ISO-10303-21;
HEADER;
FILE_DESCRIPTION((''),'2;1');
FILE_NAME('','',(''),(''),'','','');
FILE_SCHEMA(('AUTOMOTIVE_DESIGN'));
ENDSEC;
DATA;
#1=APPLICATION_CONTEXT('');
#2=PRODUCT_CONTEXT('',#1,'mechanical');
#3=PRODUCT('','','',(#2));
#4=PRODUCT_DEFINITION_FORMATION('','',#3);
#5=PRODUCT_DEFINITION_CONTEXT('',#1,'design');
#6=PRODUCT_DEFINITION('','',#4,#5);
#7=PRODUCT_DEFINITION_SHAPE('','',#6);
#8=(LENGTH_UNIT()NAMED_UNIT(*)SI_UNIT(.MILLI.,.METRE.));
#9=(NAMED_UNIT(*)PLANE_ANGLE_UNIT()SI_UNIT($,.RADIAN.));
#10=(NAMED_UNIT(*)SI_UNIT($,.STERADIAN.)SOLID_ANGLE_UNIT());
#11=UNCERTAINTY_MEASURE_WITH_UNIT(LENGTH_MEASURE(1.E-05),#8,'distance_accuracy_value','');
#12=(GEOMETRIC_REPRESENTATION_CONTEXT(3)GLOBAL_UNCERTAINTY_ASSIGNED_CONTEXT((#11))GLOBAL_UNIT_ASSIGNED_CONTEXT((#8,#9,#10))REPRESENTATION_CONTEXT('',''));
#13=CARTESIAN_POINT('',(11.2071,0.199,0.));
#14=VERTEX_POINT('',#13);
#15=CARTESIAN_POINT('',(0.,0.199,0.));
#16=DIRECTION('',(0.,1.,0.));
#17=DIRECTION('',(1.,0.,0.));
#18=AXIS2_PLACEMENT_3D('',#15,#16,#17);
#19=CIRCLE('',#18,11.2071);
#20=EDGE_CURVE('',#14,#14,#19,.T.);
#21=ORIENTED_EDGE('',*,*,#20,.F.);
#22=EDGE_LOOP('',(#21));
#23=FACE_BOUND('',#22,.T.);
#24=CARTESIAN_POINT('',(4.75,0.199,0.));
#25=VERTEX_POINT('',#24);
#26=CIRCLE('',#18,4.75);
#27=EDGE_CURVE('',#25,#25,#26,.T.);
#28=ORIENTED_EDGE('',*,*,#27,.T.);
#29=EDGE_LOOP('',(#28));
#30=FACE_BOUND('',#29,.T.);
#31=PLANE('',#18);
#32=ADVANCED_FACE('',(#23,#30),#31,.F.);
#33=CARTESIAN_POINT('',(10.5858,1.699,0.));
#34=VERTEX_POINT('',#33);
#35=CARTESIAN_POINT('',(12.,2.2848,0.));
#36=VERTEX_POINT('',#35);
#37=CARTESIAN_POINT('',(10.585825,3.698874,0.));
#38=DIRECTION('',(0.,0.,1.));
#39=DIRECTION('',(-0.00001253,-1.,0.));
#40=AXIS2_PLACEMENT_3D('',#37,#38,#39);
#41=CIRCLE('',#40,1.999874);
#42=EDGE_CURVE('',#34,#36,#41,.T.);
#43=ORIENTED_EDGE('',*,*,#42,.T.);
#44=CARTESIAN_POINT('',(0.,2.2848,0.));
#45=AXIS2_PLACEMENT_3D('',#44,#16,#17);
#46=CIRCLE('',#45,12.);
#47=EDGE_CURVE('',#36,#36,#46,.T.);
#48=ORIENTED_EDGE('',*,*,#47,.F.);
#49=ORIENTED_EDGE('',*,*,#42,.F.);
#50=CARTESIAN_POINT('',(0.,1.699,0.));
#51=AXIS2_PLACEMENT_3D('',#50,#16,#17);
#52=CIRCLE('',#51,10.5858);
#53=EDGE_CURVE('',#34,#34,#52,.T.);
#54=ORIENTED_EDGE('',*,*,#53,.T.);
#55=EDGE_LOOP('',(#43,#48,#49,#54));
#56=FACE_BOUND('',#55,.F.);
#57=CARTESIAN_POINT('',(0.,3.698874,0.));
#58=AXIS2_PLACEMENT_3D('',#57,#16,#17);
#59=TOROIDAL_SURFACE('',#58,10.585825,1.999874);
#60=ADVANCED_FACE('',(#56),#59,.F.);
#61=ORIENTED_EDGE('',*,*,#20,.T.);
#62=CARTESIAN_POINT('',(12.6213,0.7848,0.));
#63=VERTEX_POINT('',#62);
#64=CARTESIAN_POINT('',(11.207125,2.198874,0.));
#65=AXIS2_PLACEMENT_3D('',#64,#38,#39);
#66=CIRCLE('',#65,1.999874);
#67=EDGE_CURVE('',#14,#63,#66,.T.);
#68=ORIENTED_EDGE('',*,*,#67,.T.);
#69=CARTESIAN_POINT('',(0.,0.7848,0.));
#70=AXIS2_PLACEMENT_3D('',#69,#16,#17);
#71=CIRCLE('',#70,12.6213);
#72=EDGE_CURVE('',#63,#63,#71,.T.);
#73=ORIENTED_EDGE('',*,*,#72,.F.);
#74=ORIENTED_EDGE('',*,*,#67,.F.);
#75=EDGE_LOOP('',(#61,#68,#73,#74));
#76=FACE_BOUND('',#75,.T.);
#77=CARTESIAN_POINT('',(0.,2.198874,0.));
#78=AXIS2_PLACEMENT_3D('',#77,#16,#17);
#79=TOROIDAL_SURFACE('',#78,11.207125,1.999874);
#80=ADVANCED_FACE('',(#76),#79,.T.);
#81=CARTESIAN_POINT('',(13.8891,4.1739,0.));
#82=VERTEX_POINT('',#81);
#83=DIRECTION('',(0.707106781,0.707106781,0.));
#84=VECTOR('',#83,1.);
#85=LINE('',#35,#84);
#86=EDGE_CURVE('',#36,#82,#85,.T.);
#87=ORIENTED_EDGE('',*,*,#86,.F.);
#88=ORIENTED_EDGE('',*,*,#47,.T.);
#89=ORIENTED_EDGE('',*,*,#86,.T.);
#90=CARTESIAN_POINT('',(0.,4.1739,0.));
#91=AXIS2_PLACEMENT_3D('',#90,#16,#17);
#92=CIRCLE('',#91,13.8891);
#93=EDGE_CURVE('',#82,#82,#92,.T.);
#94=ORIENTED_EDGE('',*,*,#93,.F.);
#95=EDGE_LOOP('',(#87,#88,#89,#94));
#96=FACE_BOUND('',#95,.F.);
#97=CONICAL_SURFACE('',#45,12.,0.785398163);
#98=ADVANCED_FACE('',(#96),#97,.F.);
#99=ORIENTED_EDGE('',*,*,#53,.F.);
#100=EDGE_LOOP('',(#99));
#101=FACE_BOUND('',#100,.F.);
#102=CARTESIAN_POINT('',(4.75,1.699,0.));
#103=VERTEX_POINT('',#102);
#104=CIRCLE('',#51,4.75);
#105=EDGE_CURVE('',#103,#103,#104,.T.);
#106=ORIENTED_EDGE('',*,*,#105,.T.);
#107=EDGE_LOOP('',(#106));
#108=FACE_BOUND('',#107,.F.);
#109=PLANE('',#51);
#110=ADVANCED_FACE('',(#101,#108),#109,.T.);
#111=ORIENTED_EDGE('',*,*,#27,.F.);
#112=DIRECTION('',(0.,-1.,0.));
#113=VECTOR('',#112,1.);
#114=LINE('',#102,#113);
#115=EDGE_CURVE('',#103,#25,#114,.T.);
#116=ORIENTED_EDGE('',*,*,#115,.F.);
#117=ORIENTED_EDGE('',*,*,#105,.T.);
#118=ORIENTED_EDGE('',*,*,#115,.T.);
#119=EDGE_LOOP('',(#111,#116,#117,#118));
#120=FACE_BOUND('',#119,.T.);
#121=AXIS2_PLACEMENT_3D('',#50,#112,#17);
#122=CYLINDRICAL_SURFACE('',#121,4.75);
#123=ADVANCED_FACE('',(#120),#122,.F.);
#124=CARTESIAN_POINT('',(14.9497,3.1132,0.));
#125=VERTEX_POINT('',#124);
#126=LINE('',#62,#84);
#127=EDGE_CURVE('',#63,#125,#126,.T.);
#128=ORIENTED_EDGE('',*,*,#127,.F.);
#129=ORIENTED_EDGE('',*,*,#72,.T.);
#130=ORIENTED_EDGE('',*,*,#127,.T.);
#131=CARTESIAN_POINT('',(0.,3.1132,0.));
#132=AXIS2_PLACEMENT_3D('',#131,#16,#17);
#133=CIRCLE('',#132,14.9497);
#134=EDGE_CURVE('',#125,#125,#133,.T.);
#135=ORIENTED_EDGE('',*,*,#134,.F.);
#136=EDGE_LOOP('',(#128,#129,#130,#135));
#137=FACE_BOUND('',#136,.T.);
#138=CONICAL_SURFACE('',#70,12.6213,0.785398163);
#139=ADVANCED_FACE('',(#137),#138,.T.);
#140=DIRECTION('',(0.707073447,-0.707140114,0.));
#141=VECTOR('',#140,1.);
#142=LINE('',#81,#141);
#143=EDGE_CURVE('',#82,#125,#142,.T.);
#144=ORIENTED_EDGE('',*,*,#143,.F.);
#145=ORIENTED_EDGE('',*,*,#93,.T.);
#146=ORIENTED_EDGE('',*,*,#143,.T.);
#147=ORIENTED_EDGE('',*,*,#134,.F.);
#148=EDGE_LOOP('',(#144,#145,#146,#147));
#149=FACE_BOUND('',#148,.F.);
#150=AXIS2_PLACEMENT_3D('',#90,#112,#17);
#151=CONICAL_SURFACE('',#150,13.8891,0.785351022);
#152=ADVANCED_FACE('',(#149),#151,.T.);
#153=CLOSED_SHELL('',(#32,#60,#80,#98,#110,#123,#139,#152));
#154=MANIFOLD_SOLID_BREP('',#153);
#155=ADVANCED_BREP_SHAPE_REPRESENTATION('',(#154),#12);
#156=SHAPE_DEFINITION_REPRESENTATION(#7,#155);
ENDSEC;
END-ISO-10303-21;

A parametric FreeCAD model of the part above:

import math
import FreeCAD as App
import Part
import Sketcher
Q = App.Units.Quantity

doc = App.newDocument("Part")
body = doc.addObject("PartDesign::Body", "Body")

# Sketch on XY plane
sketch1 = doc.addObject("Sketcher::SketchObject", "Sketch")
body.addObject(sketch1)
sketch1.AttachmentSupport = (doc.XY_Plane, [""])
sketch1.MapMode = "FlatFace"
sketch1.addGeometry(Part.LineSegment(App.Vector(10.5858, 1.699, 0), App.Vector(4.75, 1.699, 0)), False)
sketch1.addGeometry(Part.LineSegment(App.Vector(4.75, 1.699, 0), App.Vector(4.75, 0.199, 0)), False)
sketch1.addGeometry(Part.LineSegment(App.Vector(4.75, 0.199, 0), App.Vector(11.2071, 0.199, 0)), False)
sketch1.addGeometry(Part.ArcOfCircle(Part.Circle(App.Vector(11.2071, 2.199, 0), App.Vector(0, 0, 1), 2), math.radians(-90), math.radians(-45)), False)
sketch1.addGeometry(Part.LineSegment(App.Vector(12.6213, 0.7848, 0), App.Vector(14.9497, 3.1132, 0)), False)
sketch1.addGeometry(Part.LineSegment(App.Vector(14.9497, 3.1132, 0), App.Vector(13.8891, 4.1739, 0)), False)
sketch1.addGeometry(Part.LineSegment(App.Vector(13.8891, 4.1739, 0), App.Vector(12, 2.2848, 0)), False)
sketch1.addGeometry(Part.ArcOfCircle(Part.Circle(App.Vector(10.5858, 3.699, 0), App.Vector(0, 0, 1), 2), math.radians(-90), math.radians(-45)), False)
sketch1.addConstraint(Sketcher.Constraint("Coincident", 0, 2, 1, 1))
sketch1.addConstraint(Sketcher.Constraint("Coincident", 1, 2, 2, 1))
sketch1.addConstraint(Sketcher.Constraint("Tangent", 2, 2, 3, 1))
sketch1.addConstraint(Sketcher.Constraint("Tangent", 3, 2, 4, 1))
sketch1.addConstraint(Sketcher.Constraint("Coincident", 4, 2, 5, 1))
sketch1.addConstraint(Sketcher.Constraint("Coincident", 5, 2, 6, 1))
sketch1.addConstraint(Sketcher.Constraint("Tangent", 6, 2, 7, 2))
sketch1.addConstraint(Sketcher.Constraint("Tangent", 7, 1, 0, 1))
sketch1.addConstraint(Sketcher.Constraint("Horizontal", 0))
sketch1.addConstraint(Sketcher.Constraint("Vertical", 1))
sketch1.addConstraint(Sketcher.Constraint("Horizontal", 2))
sketch1.addConstraint(Sketcher.Constraint("Equal", 3, 7))
sketch1.addConstraint(Sketcher.Constraint("Perpendicular", 4, 5))
sketch1.addConstraint(Sketcher.Constraint("Perpendicular", 5, 6))
sketch1.addConstraint(Sketcher.Constraint("Radius", 3, 2.0))
sketch1.addConstraint(Sketcher.Constraint("Angle", 6, Q("-135 deg")))
sketch1.addConstraint(Sketcher.Constraint("DistanceY", 1, 2, 1, 1, 1.5))
sketch1.addConstraint(Sketcher.Constraint("Distance", 5, 1.5))
sketch1.addConstraint(Sketcher.Constraint("DistanceX", -1, 1, 6, 2, 12.0))
sketch1.addConstraint(Sketcher.Constraint("DistanceX", 2, 1, 2, 2, 6.457))
sketch1.addConstraint(Sketcher.Constraint("DistanceY", -1, 1, 3, 3, 2.199))
sketch1.addConstraint(Sketcher.Constraint("DistanceX", -1, 1, 5, 2, 13.889))
revolution = doc.addObject("PartDesign::Revolution", "Revolution")
body.addObject(revolution)
revolution.Profile = sketch1
revolution.ReferenceAxis = (sketch1, ["V_Axis"])
revolution.Angle = 360

doc.recompute()
